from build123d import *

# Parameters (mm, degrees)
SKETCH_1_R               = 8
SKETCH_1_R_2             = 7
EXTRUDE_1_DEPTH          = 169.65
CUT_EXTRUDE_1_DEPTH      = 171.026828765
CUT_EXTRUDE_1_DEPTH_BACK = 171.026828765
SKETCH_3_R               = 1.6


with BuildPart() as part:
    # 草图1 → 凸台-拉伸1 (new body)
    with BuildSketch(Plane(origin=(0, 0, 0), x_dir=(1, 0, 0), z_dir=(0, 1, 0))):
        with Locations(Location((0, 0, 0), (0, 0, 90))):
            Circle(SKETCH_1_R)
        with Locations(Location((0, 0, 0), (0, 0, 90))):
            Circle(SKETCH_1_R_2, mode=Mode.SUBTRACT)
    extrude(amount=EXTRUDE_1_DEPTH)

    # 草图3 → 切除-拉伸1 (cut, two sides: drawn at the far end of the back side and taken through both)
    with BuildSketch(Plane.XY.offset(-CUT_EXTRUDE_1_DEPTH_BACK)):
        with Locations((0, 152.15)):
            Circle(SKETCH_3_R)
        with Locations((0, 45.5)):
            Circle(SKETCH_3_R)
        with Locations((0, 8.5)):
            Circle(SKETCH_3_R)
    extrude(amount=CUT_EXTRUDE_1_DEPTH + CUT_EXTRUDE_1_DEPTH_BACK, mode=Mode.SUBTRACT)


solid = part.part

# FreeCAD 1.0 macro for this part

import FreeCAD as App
import Part
import Sketcher

V = App.Vector
Q = App.Units.Quantity

doc = App.newDocument("Part")
body = doc.addObject("PartDesign::Body", "Body")

# Sketch on XZ plane
sketch1 = body.newObject("Sketcher::SketchObject", "Sketch")
sketch1.AttachmentSupport = (doc.getObject("XZ_Plane"), [""])
sketch1.MapMode = "FlatFace"
sketch1.addGeometry(Part.Circle(V(0, 0, 0), V(0, 0, 1), 8), False)
sketch1.addGeometry(Part.Circle(V(0, 0, 0), V(0, 0, 1), 7), False)
sketch1.addConstraint(Sketcher.Constraint("Coincident", 0, 3, -1, 1))
sketch1.addConstraint(Sketcher.Constraint("Coincident", 1, 3, -1, 1))
sketch1.addConstraint(Sketcher.Constraint("Diameter", 0, Q("16 mm")))
sketch1.addConstraint(Sketcher.Constraint("Diameter", 1, Q("14 mm")))
pad1 = body.newObject("PartDesign::Pad", "Pad")
pad1.Profile = sketch1
pad1.Length = 169.65
pad1.Reversed = True

# Sketch on XY plane
sketch2 = body.newObject("Sketcher::SketchObject", "Sketch001")
sketch2.AttachmentSupport = (doc.getObject("XY_Plane"), [""])
sketch2.MapMode = "FlatFace"
sketch2.addGeometry(Part.Circle(V(0, 152.2, 0), V(0, 0, 1), 1.6), False)
sketch2.addGeometry(Part.Circle(V(0, 45.5, 0), V(0, 0, 1), 1.6), False)
sketch2.addGeometry(Part.Circle(V(0, 8.5, 0), V(0, 0, 1), 1.6), False)
sketch2.addConstraint(Sketcher.Constraint("Equal", 0, 1))
sketch2.addConstraint(Sketcher.Constraint("Equal", 1, 2))
sketch2.addConstraint(Sketcher.Constraint("PointOnObject", 0, 3, -2))
sketch2.addConstraint(Sketcher.Constraint("PointOnObject", 1, 3, -2))
sketch2.addConstraint(Sketcher.Constraint("PointOnObject", 2, 3, -2))
sketch2.addConstraint(Sketcher.Constraint("Diameter", 0, Q("3.2 mm")))
sketch2.addConstraint(Sketcher.Constraint("DistanceY", 2, 3, 1, 3, Q("37 mm")))
sketch2.addConstraint(Sketcher.Constraint("DistanceY", -1, 1, 1, 3, Q("45.5 mm")))
sketch2.addConstraint(Sketcher.Constraint("DistanceY", -1, 1, 0, 3, Q("152.15 mm")))
pocket1 = body.newObject("PartDesign::Pocket", "Pocket")
pocket1.Profile = sketch2
pocket1.Type = "ThroughAll"
pocket1.Midplane = True

doc.recompute()
